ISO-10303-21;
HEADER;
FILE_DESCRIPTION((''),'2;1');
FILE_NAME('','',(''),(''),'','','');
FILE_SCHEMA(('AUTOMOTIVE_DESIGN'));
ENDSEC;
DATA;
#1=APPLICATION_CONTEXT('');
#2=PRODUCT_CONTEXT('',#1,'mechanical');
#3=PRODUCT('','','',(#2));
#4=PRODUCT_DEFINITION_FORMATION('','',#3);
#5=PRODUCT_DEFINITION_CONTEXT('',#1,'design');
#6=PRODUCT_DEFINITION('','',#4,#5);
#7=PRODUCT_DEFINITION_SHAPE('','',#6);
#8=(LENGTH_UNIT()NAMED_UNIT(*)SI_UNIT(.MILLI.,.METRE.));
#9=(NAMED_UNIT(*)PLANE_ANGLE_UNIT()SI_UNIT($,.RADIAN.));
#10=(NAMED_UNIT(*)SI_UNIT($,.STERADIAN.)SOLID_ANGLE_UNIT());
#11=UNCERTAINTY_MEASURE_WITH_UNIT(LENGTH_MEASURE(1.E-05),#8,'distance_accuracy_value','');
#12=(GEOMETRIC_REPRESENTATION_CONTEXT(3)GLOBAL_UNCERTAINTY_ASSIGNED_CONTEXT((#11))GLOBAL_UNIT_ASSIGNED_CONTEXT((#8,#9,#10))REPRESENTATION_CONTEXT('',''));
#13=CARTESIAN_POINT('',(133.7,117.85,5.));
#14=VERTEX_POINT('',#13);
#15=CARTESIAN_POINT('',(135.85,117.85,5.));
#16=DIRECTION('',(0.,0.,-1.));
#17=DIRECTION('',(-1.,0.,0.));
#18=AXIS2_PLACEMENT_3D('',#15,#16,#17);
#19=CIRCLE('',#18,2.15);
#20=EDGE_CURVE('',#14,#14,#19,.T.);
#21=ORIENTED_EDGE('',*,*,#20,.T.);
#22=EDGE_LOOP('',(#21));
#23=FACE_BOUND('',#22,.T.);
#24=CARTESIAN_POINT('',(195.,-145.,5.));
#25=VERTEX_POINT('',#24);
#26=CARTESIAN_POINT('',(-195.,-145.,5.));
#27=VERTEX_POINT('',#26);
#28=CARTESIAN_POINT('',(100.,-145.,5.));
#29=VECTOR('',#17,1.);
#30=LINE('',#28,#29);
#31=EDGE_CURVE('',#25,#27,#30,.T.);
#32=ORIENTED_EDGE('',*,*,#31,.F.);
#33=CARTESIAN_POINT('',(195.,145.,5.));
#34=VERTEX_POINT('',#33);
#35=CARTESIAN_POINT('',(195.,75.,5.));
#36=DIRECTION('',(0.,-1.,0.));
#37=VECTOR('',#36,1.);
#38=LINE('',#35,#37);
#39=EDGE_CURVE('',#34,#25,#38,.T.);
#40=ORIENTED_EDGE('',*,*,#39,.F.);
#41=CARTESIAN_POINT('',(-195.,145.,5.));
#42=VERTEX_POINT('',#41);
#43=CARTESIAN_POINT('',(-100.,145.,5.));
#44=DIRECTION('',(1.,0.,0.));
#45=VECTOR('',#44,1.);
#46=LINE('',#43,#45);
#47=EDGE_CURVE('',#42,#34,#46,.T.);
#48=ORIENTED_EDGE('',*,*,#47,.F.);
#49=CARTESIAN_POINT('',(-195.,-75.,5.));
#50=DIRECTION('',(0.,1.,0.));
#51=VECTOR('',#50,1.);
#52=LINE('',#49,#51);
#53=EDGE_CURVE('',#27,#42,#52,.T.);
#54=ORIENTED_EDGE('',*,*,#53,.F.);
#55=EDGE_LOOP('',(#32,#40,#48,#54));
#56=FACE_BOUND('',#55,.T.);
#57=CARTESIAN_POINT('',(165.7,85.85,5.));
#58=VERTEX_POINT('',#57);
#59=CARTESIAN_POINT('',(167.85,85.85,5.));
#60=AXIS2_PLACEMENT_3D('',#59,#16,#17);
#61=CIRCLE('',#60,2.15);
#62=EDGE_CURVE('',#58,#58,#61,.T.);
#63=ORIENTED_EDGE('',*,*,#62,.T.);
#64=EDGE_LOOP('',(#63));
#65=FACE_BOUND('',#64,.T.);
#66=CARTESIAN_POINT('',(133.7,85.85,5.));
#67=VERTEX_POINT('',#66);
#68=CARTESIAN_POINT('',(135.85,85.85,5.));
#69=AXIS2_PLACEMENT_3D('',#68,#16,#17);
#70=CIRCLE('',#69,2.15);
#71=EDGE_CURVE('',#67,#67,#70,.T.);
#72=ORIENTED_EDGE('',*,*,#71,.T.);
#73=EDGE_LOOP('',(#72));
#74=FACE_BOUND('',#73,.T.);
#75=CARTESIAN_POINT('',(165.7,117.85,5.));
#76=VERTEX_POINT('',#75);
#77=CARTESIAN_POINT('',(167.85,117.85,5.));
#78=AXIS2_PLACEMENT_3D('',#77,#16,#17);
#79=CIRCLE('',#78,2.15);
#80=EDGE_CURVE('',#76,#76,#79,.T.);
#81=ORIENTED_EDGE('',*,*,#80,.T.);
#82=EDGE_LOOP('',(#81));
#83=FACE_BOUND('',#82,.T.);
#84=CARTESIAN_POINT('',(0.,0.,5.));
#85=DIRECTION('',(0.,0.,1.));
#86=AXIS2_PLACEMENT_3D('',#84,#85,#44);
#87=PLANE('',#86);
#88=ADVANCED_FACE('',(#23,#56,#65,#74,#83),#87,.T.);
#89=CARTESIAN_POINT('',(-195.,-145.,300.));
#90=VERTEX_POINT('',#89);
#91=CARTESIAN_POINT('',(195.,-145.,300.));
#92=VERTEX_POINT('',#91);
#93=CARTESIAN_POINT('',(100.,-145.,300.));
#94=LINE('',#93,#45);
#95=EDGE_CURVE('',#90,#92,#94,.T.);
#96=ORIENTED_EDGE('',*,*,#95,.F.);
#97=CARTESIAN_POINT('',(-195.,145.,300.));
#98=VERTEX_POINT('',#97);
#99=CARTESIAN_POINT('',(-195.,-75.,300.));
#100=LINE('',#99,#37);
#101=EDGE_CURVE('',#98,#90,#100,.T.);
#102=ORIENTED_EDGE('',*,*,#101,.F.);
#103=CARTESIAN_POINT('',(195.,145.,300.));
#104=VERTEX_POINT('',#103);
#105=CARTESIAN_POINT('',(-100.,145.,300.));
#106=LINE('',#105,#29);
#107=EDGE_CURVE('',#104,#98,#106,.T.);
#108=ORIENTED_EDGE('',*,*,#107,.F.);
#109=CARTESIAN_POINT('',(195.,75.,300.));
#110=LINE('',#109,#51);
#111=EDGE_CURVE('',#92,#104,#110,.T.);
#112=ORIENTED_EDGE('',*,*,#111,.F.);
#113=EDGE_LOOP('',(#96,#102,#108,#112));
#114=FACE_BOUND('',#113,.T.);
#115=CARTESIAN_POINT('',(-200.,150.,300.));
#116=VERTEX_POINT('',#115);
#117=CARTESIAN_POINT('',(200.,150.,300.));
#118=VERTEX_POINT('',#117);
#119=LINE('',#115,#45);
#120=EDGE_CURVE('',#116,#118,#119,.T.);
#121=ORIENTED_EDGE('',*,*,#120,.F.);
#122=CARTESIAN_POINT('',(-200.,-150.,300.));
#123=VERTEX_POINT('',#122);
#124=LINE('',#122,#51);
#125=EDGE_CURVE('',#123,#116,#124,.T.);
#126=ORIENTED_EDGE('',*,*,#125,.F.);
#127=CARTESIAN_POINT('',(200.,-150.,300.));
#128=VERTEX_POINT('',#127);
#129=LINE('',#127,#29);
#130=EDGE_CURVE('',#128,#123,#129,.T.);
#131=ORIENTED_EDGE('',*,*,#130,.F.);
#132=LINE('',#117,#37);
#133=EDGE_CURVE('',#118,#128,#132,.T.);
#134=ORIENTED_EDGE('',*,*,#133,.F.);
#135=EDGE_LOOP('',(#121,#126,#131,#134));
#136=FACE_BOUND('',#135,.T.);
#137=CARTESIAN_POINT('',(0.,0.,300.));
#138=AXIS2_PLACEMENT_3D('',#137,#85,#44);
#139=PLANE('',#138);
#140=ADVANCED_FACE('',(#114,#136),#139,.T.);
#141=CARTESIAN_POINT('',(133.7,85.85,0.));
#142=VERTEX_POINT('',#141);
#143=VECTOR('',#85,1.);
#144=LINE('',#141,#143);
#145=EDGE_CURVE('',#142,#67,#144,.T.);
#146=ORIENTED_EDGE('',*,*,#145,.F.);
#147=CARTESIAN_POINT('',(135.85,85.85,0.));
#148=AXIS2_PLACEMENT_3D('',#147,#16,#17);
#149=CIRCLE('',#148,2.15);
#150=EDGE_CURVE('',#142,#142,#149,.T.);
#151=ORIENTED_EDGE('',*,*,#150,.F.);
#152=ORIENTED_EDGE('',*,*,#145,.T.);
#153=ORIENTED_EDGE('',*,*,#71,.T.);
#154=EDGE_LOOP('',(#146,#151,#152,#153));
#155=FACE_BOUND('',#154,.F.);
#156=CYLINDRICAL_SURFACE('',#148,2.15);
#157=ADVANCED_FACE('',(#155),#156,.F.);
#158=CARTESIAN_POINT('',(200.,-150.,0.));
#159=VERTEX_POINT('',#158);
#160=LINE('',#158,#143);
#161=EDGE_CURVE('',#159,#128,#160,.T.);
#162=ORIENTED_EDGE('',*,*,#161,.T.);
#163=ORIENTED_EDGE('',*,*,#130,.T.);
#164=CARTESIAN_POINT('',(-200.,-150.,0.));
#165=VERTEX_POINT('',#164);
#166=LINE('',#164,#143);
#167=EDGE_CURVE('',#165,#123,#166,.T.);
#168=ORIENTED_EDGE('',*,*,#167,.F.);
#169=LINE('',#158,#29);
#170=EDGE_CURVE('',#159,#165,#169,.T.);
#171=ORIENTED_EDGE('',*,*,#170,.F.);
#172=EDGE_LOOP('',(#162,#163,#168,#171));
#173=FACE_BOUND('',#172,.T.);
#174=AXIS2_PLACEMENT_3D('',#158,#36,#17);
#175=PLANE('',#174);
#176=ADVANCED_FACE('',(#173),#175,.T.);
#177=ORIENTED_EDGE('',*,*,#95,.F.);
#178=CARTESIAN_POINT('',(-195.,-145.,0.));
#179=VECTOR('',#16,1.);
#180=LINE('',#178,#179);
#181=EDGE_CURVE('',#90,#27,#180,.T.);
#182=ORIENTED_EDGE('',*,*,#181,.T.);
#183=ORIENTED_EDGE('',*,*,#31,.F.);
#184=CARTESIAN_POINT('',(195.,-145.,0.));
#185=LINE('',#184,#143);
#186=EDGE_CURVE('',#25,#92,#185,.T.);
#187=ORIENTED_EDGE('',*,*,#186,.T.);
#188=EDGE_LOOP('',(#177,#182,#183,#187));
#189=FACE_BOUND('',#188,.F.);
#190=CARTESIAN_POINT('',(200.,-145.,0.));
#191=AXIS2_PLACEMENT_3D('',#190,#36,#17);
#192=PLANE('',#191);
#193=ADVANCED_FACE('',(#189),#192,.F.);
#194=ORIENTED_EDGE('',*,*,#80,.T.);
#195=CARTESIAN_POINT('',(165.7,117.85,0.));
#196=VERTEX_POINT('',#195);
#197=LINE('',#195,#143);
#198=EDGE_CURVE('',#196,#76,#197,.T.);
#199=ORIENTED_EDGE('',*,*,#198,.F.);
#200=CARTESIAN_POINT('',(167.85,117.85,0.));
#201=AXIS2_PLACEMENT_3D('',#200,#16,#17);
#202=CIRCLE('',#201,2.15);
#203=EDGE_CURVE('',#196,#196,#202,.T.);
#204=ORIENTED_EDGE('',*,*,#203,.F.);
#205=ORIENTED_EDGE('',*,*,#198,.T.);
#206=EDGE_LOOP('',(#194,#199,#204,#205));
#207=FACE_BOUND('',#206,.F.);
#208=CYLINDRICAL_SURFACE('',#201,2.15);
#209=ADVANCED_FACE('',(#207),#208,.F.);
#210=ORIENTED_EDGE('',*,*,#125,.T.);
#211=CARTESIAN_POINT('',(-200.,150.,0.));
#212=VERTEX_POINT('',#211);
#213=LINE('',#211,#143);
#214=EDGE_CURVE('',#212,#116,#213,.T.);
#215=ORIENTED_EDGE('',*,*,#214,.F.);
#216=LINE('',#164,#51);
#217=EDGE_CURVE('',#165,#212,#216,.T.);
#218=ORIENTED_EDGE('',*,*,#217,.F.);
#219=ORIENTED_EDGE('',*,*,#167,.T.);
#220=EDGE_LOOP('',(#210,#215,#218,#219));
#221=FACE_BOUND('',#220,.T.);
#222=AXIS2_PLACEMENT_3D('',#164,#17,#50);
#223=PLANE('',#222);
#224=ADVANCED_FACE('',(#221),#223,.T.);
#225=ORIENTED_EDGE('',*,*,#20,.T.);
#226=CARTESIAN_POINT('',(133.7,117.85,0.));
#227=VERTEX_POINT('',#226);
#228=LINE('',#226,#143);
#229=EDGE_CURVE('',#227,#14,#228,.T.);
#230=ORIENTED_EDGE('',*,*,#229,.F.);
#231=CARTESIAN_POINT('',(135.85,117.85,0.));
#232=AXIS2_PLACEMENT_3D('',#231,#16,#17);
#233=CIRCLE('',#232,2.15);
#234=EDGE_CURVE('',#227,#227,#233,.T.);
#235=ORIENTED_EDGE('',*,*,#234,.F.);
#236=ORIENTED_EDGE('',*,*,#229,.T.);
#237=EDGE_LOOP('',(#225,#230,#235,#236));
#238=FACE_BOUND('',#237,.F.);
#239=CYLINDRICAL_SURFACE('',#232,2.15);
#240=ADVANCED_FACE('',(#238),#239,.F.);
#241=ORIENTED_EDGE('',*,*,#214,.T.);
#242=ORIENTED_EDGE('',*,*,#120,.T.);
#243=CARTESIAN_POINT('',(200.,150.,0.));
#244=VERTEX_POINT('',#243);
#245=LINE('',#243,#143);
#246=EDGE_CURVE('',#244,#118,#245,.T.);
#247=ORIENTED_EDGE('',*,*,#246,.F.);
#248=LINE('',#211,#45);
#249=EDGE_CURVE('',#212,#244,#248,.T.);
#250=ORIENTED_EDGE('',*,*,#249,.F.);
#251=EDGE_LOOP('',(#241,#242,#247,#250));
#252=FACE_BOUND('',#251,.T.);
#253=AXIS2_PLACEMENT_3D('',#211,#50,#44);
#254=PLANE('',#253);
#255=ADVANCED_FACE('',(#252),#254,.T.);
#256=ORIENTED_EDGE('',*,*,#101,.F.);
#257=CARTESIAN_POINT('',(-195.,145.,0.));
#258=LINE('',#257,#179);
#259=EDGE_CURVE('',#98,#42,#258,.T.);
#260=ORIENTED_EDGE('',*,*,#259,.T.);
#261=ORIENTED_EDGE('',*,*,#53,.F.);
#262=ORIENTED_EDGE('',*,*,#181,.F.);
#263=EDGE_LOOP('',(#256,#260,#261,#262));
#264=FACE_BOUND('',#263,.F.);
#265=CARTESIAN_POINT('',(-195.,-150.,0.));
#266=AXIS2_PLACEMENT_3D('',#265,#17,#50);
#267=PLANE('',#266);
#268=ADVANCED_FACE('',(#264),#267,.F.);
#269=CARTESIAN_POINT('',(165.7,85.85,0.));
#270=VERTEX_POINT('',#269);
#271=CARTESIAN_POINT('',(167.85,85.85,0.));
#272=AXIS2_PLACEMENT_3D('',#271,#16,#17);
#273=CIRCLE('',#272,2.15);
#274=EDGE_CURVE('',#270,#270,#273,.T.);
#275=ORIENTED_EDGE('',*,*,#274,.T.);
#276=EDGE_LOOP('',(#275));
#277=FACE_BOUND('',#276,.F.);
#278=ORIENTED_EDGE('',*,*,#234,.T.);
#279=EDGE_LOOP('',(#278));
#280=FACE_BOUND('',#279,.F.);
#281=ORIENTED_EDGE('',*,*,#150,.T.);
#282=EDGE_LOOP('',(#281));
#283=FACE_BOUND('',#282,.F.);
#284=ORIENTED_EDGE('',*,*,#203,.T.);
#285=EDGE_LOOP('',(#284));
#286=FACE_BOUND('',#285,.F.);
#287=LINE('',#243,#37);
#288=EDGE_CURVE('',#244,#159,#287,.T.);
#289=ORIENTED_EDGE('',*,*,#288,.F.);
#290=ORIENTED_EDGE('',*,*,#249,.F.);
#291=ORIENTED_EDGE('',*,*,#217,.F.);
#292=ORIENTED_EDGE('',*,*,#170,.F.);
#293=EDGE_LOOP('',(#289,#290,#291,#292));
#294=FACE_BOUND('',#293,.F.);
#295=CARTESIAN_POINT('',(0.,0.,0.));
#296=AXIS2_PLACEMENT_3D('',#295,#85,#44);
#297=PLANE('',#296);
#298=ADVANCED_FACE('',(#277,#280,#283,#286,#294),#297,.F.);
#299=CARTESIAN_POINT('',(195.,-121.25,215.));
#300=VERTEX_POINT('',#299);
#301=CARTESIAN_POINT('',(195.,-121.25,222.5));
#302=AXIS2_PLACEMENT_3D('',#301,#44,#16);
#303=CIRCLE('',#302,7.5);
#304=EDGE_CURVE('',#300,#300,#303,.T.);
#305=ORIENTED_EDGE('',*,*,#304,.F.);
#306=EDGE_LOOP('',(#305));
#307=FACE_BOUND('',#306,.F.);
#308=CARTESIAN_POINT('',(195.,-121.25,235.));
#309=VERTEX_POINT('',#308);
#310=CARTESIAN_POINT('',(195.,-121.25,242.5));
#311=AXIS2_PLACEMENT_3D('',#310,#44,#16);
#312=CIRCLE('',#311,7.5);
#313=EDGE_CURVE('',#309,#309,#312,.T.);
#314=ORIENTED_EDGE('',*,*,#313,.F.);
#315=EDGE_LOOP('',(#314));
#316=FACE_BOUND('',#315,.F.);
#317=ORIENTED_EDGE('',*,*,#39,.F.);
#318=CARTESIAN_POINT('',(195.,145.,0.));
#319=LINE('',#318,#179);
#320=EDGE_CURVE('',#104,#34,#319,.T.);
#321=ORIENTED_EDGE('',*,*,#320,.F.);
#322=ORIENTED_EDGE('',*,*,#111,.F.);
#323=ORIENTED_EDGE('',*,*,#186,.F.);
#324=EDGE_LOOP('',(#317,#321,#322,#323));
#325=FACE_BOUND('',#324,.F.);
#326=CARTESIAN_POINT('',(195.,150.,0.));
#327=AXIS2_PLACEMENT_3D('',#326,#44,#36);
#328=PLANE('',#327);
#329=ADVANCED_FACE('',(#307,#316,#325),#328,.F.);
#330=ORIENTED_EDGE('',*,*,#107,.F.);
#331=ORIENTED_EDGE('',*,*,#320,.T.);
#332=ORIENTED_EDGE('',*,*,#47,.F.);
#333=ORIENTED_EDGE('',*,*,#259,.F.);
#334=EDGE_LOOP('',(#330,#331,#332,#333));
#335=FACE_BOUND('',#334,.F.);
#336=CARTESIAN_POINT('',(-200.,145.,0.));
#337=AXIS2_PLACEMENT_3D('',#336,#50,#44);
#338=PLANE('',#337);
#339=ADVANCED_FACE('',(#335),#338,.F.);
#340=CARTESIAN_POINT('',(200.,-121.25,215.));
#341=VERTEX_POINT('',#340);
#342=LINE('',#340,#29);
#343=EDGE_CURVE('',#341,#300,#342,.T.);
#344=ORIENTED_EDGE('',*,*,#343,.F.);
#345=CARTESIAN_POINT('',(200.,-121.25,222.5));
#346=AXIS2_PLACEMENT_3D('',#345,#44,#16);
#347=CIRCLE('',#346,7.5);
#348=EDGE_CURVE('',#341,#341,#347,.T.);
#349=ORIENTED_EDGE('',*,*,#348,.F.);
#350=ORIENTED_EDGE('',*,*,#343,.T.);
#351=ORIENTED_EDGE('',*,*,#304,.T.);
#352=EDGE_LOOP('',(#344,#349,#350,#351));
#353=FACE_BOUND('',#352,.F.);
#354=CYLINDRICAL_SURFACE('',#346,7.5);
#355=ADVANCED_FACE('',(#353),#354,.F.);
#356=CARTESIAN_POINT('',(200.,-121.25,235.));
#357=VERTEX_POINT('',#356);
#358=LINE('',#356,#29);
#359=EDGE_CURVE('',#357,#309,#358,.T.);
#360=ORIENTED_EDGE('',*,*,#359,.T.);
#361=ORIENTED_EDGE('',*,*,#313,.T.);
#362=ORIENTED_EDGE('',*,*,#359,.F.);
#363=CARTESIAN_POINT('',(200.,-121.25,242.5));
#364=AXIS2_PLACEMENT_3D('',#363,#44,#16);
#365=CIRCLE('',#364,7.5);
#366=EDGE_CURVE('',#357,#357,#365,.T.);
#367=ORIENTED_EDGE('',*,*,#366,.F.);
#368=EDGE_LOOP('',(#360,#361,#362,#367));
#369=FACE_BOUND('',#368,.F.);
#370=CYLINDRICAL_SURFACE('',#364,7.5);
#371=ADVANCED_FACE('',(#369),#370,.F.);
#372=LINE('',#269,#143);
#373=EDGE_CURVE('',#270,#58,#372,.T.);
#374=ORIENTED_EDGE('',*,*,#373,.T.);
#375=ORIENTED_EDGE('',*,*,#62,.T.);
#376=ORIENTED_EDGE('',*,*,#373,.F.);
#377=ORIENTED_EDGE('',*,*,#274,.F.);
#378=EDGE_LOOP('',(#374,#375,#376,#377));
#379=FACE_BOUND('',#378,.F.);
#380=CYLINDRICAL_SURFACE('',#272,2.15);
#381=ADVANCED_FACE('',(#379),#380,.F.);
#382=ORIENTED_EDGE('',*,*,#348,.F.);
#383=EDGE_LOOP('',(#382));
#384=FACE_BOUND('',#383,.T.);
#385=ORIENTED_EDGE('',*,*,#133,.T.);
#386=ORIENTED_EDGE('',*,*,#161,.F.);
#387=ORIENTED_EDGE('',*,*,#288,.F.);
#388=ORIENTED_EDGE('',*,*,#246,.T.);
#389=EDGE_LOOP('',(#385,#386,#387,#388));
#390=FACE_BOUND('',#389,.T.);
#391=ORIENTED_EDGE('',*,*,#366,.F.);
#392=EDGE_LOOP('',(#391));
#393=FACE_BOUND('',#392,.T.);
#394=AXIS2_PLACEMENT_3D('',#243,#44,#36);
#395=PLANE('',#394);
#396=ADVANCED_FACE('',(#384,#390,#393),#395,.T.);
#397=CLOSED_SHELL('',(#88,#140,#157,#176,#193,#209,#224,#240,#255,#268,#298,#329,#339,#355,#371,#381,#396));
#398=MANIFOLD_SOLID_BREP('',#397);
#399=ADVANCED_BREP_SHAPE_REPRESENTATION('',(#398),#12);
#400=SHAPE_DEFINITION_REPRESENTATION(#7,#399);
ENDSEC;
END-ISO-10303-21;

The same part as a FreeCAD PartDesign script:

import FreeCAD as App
import Part
import Sketcher
from FreeCAD import Vector


def faces_at(feature, points):
    """Names of the faces that lie closest to the given points."""
    faces = feature.Shape.Faces
    near = lambda p: min(range(len(faces)), key=lambda i: faces[i].distToShape(Part.Vertex(*p))[0])
    return sorted({f"Face{near(p) + 1}" for p in points})

doc = App.newDocument("Part")
body = doc.addObject("PartDesign::Body", "Body")

sketch1 = doc.addObject("Sketcher::SketchObject", "Sketch")
body.addObject(sketch1)
sketch1.AttachmentSupport = (doc.XY_Plane, [""])
sketch1.MapMode = "FlatFace"
sketch1.addGeometry([
    Part.LineSegment(Vector(-200, -150, 0), Vector(200, -150, 0)),
    Part.LineSegment(Vector(200, -150, 0), Vector(200, 150, 0)),
    Part.LineSegment(Vector(200, 150, 0), Vector(-200, 150, 0)),
    Part.LineSegment(Vector(-200, 150, 0), Vector(-200, -150, 0)),
], False)
sketch1.addConstraint([
    Sketcher.Constraint("Coincident", 0, 2, 1, 1),
    Sketcher.Constraint("Coincident", 1, 2, 2, 1),
    Sketcher.Constraint("Coincident", 2, 2, 3, 1),
    Sketcher.Constraint("Coincident", 3, 2, 0, 1),
    Sketcher.Constraint("Horizontal", 0),
    Sketcher.Constraint("Vertical", 1),
    Sketcher.Constraint("Horizontal", 2),
    Sketcher.Constraint("Vertical", 3),
    Sketcher.Constraint("Symmetric", 0, 2, 2, 2, -1, 1),
    Sketcher.Constraint("DistanceX", 0, 1, 0, 2, 400.0),
    Sketcher.Constraint("DistanceY", 1, 1, 1, 2, 300.0),
])
pad1 = doc.addObject("PartDesign::Pad", "Pad")
body.addObject(pad1)
pad1.Profile = sketch1
pad1.Length = 300
doc.recompute()

thickness = doc.addObject("PartDesign::Thickness", "Thickness")
body.addObject(thickness)
thickness.Base = (pad1, faces_at(pad1, [(66.667, -50, 300)]))
thickness.Value = 5
thickness.Reversed = True
thickness.Join = "Intersection"

sketch2 = doc.addObject("Sketcher::SketchObject", "Sketch001")
body.addObject(sketch2)
sketch2.AttachmentSupport = (doc.XY_Plane, [""])
sketch2.MapMode = "FlatFace"
sketch2.addGeometry([
    Part.Circle(Vector(167.8, 85.8, 0), Vector(0, 0, 1), 2.1),
    Part.Circle(Vector(135.8, 85.8, 0), Vector(0, 0, 1), 2.1),
    Part.Circle(Vector(167.8, 117.8, 0), Vector(0, 0, 1), 2.1),
    Part.Circle(Vector(135.8, 117.8, 0), Vector(0, 0, 1), 2.1),
], False)
sketch2.addConstraint([
    Sketcher.Constraint("Equal", 0, 1),
    Sketcher.Constraint("Equal", 1, 2),
    Sketcher.Constraint("Equal", 2, 3),
    Sketcher.Constraint("Horizontal", 0, 3, 1, 3),
    Sketcher.Constraint("Horizontal", 2, 3, 3, 3),
    Sketcher.Constraint("Vertical", 0, 3, 2, 3),
    Sketcher.Constraint("Vertical", 1, 3, 3, 3),
    Sketcher.Constraint("Diameter", 0, 4.3),
    Sketcher.Constraint("DistanceX", 1, 3, 0, 3, 32.0),
    Sketcher.Constraint("DistanceY", 0, 3, 2, 3, 32.0),
    Sketcher.Constraint("DistanceX", -1, 1, 0, 3, 167.85),
    Sketcher.Constraint("DistanceY", -1, 1, 0, 3, 85.85),
])
pocket1 = doc.addObject("PartDesign::Pocket", "Pocket")
body.addObject(pocket1)
pocket1.Profile = sketch2
pocket1.Length = 5
pocket1.Reversed = True

sketch3 = doc.addObject("Sketcher::SketchObject", "Sketch002")
body.addObject(sketch3)
sketch3.AttachmentSupport = (doc.YZ_Plane, [""])
sketch3.MapMode = "FlatFace"
sketch3.AttachmentOffset = App.Placement(Vector(0, 0, 200), App.Rotation())
sketch3.addGeometry([
    Part.Circle(Vector(-121, 242, 0), Vector(0, 0, 1), 8),
    Part.Circle(Vector(-121, 222, 0), Vector(0, 0, 1), 8),
], False)
sketch3.addConstraint([
    Sketcher.Constraint("Equal", 0, 1),
    Sketcher.Constraint("Vertical", 0, 3, 1, 3),
    Sketcher.Constraint("Diameter", 0, 15.0),
    Sketcher.Constraint("DistanceY", 1, 3, 0, 3, 20.0),
    Sketcher.Constraint("DistanceY", -1, 1, 0, 3, 242.5),
    Sketcher.Constraint("DistanceX", 0, 3, -1, 1, 121.25),
])
pocket2 = doc.addObject("PartDesign::Pocket", "Pocket001")
body.addObject(pocket2)
pocket2.Profile = sketch3
pocket2.Length = 5

doc.recompute()
